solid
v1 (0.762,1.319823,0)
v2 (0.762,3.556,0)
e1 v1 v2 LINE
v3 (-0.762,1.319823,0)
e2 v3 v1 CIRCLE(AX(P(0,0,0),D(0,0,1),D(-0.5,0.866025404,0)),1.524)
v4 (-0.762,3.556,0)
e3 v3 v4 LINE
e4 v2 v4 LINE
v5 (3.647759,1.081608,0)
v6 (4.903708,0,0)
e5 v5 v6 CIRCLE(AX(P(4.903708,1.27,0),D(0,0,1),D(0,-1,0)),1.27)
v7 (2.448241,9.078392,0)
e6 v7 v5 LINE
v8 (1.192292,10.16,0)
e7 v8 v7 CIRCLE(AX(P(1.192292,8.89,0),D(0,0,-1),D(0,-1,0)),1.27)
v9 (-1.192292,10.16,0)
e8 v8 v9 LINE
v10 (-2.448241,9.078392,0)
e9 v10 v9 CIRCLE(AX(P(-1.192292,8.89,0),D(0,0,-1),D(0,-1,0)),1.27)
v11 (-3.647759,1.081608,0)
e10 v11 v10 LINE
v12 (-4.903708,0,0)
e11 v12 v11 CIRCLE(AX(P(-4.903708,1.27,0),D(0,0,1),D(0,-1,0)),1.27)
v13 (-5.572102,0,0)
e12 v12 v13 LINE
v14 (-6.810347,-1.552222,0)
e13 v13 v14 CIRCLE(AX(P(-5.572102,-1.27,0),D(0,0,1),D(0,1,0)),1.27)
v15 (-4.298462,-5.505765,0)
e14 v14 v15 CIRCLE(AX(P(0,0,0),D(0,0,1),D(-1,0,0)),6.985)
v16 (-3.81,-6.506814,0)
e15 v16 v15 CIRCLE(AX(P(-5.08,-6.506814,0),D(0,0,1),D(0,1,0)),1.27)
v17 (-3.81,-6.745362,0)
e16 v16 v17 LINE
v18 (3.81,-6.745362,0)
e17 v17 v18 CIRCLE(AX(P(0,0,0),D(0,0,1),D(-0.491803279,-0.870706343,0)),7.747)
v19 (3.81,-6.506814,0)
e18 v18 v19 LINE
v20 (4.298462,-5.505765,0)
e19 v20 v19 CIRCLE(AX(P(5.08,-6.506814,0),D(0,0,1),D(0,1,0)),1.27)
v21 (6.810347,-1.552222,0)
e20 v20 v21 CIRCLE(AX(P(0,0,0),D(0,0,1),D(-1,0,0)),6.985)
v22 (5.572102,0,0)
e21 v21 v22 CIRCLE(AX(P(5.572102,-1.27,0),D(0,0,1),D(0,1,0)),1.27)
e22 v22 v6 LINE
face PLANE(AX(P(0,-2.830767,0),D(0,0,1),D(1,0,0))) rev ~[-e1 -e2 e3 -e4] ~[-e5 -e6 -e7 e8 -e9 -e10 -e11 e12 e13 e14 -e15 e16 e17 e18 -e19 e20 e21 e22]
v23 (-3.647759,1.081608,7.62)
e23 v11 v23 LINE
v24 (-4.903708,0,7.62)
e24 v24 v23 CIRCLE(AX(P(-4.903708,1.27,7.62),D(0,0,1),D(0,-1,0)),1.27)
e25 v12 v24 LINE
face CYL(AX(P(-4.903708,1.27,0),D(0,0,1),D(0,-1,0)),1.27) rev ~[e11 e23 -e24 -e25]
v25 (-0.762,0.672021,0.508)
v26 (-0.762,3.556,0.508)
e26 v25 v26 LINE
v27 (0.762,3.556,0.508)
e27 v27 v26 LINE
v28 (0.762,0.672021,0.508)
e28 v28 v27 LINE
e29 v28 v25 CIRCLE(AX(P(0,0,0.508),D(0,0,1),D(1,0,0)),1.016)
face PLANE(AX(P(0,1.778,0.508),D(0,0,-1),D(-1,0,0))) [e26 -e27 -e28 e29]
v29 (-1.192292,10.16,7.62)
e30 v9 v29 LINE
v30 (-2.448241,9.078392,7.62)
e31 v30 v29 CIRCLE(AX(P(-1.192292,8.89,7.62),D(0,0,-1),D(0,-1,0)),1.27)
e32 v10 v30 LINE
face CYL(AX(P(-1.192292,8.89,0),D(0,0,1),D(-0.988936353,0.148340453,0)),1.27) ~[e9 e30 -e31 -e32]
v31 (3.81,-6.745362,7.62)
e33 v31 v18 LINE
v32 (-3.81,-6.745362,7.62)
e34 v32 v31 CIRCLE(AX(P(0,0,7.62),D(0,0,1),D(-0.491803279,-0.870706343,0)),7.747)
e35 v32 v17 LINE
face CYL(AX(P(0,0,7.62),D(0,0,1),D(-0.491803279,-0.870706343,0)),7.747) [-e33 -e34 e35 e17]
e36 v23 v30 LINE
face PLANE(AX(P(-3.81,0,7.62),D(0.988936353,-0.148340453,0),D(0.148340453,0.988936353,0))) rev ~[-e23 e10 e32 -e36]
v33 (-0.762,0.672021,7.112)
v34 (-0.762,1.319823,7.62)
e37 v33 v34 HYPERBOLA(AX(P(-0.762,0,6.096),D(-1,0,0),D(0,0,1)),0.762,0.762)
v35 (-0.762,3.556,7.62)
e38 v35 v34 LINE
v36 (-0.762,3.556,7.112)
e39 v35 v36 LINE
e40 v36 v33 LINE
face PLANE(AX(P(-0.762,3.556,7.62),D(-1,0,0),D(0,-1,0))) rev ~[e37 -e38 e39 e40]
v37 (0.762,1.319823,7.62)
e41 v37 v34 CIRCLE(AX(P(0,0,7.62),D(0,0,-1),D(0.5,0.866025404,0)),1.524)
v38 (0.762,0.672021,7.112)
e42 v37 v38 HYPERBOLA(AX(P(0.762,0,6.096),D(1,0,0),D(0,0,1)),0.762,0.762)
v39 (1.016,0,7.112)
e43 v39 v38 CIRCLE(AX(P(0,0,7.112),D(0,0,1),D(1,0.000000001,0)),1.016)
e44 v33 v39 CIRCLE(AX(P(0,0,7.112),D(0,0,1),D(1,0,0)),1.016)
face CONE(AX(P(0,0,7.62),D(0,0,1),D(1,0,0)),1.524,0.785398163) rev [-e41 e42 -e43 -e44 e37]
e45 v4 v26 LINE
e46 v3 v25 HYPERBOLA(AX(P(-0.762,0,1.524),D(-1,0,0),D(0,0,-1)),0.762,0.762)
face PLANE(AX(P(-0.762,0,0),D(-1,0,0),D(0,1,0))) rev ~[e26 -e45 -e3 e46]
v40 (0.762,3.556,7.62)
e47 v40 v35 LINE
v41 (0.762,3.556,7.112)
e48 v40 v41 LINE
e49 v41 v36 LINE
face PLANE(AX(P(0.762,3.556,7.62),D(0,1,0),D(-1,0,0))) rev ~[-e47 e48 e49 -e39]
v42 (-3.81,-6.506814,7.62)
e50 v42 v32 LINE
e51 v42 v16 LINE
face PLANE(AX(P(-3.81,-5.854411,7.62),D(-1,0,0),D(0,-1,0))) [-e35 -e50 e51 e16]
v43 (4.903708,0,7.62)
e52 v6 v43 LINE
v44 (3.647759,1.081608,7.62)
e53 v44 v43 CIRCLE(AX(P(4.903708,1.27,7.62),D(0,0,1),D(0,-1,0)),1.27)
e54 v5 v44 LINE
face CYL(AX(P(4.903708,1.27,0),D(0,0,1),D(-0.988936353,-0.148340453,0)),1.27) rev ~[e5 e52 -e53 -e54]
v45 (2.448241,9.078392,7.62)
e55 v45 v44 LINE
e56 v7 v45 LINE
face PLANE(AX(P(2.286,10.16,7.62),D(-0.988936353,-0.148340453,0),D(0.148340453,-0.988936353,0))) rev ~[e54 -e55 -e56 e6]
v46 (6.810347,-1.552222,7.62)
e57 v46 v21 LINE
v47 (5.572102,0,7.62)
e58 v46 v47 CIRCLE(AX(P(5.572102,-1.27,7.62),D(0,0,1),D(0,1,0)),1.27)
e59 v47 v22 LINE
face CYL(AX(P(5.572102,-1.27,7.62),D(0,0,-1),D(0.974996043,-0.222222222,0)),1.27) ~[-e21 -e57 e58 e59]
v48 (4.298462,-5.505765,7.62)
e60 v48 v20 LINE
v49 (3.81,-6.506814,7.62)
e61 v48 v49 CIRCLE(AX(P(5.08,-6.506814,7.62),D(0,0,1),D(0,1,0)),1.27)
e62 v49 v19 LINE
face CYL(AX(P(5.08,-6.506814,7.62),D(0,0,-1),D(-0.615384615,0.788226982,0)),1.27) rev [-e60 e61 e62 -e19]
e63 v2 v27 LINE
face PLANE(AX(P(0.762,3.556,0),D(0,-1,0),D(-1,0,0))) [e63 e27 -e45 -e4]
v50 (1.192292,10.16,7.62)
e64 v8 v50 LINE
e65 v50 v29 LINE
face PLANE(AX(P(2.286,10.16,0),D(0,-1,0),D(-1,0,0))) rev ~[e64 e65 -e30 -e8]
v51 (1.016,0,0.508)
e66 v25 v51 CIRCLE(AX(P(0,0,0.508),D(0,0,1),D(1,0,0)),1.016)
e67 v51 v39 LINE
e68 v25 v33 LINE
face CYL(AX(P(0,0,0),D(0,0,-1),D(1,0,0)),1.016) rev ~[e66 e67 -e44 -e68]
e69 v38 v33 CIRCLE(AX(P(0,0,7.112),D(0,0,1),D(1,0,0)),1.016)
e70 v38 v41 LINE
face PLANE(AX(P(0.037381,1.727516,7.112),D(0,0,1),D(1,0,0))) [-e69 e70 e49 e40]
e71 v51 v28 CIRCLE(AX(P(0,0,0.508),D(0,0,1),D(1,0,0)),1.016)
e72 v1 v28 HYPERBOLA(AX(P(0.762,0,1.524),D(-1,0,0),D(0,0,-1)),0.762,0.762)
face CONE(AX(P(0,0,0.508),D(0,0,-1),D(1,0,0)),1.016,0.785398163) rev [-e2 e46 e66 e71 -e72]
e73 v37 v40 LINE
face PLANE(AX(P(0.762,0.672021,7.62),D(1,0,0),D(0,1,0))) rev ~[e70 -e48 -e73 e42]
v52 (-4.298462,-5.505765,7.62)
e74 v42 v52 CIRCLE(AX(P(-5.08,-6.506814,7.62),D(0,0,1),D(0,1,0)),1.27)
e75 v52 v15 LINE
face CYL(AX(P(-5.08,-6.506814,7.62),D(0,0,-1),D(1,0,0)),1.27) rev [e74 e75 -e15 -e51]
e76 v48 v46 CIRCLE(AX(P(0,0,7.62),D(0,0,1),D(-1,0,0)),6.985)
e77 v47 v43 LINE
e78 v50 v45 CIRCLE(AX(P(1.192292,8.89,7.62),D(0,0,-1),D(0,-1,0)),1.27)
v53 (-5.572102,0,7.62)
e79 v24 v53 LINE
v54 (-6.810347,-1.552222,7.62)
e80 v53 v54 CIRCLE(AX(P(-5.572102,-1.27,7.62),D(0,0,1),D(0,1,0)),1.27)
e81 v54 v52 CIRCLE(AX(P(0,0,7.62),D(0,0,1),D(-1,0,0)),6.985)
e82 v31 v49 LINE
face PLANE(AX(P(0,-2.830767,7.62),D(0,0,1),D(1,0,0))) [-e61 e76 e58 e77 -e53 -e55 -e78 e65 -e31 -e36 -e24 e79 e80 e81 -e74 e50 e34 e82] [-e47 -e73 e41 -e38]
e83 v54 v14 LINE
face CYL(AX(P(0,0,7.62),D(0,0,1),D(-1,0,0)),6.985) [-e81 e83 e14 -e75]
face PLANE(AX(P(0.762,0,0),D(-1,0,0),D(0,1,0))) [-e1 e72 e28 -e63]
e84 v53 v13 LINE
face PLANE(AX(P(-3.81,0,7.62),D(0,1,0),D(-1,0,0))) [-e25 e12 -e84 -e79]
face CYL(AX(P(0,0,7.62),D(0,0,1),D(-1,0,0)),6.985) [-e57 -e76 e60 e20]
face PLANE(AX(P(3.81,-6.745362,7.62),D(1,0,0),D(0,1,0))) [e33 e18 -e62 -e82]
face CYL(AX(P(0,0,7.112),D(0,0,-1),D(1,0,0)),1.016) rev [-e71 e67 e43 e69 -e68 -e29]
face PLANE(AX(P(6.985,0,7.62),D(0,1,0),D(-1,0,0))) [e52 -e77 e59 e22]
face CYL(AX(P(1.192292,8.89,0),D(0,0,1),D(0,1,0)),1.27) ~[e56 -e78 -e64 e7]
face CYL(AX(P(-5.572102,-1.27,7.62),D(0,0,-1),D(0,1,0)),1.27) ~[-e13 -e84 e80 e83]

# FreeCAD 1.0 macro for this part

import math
import FreeCAD as App
import Part
import Sketcher

V = App.Vector
Q = App.Units.Quantity


def edges_at(feature, points):
    """Names of the edges that pass closest to the given points."""
    edges = feature.Shape.Edges
    near = lambda p: min(range(len(edges)), key=lambda i: edges[i].distToShape(Part.Vertex(*p))[0])
    return sorted({f"Edge{near(p) + 1}" for p in points})

doc = App.newDocument("Part")
params = doc.addObject("Spreadsheet::Sheet", "Params")
for row, (alias, value) in enumerate([
    ("sketch1_radius", "0.15 in"),
    ("sketch1_radius2", "0.06 in"),
    ("sketch1_radius3", "0.04 in"),
    ("sketch1_width", "0.07 in"),
    ("sketch1_height", "0.34 in"),
    ("pad1_length", "0.3 in"),
    ("sketch2_radius", "0.04 in"),
    ("sketch2_width", "0.07 in"),
    ("sketch2_width2", "0.06 in"),
    ("sketch2_height", "0.14 in"),
    ("pocket1_length", "0.02 in"),
    ("sketch3_width", "0.06 in"),
    ("sketch3_height", "0.14 in"),
    ("pocket2_length", "0.02 in"),
    ("sketch4_height", "0.3 in"),
    ("sketch4_width", "0.06 in"),
    ("sketch4_height2", "0.26 in"),
    ("groove_angle", "360 deg"),
    ("sketch5_radius", "0.15 in"),
    ("sketch5_radius2", "0.275 in"),
    ("pad2_length", "0.3 in"),
    ("sketch6_radius", "0.275 in"),
    ("sketch6_radius2", "0.305 in"),
    ("pad3_length", "0.3 in"),
    ("fillet_radius", "0.05 in"),
    ("sketch7_radius", "0.06 in"),
    ("sketch7_height", "0.34 in"),
    ("pocket3_length", "0.3 in"),
    ("fillet2_radius", "0.05 in"),
], start=1):
    params.set(f"A{row}", alias)
    params.set(f"B{row}", "=" + value)
    params.setAlias(f"B{row}", alias)

body = doc.addObject("PartDesign::Body", "Body")

# Sketch on XY plane
sketch1 = body.newObject("Sketcher::SketchObject", "Sketch")
sketch1.AttachmentSupport = (doc.getObject("XY_Plane"), [""])
sketch1.MapMode = "FlatFace"
sketch1.addGeometry(Part.ArcOfCircle(Part.Circle(V(0, 0, 0), V(0, 0, 1), 3.8), math.radians(180), math.radians(360)), False)
sketch1.addGeometry(Part.LineSegment(V(3.8, 0, 0), V(3.8, 8.6, 0)), False)
sketch1.addGeometry(Part.ArcOfCircle(Part.Circle(V(2.3, 8.6, 0), V(0, 0, 1), 1.5), math.radians(0), math.radians(90)), False)
sketch1.addGeometry(Part.LineSegment(V(2.3, 10.2, 0), V(-2.3, 10.2, 0)), False)
sketch1.addGeometry(Part.ArcOfCircle(Part.Circle(V(-2.3, 8.6, 0), V(0, 0, 1), 1.5), math.radians(90), math.radians(180)), False)
sketch1.addGeometry(Part.LineSegment(V(-3.8, 8.6, 0), V(-3.8, 0, 0)), False)
sketch1.addGeometry(Part.LineSegment(V(-0.8, 0.7, 0), V(-0.8, 0, 0)), False)
sketch1.addGeometry(Part.LineSegment(V(-0.8, 0, 0), V(1, 0, 0)), False)
sketch1.addGeometry(Part.ArcOfCircle(Part.Circle(V(0, 0, 0), V(0, 0, 1), 1), math.radians(139), math.radians(360)), False)
sketch1.addConstraint(Sketcher.Constraint("Tangent", 0, 2, 1, 1))
sketch1.addConstraint(Sketcher.Constraint("Tangent", 1, 2, 2, 1))
sketch1.addConstraint(Sketcher.Constraint("Tangent", 2, 2, 3, 1))
sketch1.addConstraint(Sketcher.Constraint("Tangent", 3, 2, 4, 1))
sketch1.addConstraint(Sketcher.Constraint("Tangent", 4, 2, 5, 1))
sketch1.addConstraint(Sketcher.Constraint("Tangent", 5, 2, 0, 1))
sketch1.addConstraint(Sketcher.Constraint("Coincident", 6, 2, 7, 1))
sketch1.addConstraint(Sketcher.Constraint("Coincident", 7, 2, 8, 2))
sketch1.addConstraint(Sketcher.Constraint("Coincident", 8, 1, 6, 1))
sketch1.addConstraint(Sketcher.Constraint("Vertical", 1))
sketch1.addConstraint(Sketcher.Constraint("Horizontal", 3))
sketch1.addConstraint(Sketcher.Constraint("Vertical", 5))
sketch1.addConstraint(Sketcher.Constraint("Vertical", 6))
sketch1.addConstraint(Sketcher.Constraint("Horizontal", 7))
sketch1.addConstraint(Sketcher.Constraint("Coincident", 0, 3, -1, 1))
sketch1.addConstraint(Sketcher.Constraint("Coincident", 8, 3, -1, 1))
sketch1.addConstraint(Sketcher.Constraint("Equal", 2, 4))
sketch1.addConstraint(Sketcher.Constraint("PointOnObject", 6, 2, -1))
sketch1.addConstraint(Sketcher.Constraint("Radius", 0, Q("0.15 in")))
sketch1.addConstraint(Sketcher.Constraint("Radius", 2, Q("0.06 in")))
sketch1.addConstraint(Sketcher.Constraint("Radius", 8, Q("0.04 in")))
sketch1.addConstraint(Sketcher.Constraint("DistanceX", 7, 1, 7, 2, Q("0.07 in")))
sketch1.addConstraint(Sketcher.Constraint("DistanceY", 1, 1, 1, 2, Q("0.34 in")))
sketch1.setExpression("Constraints[18]", "Params.sketch1_radius")
sketch1.setExpression("Constraints[19]", "Params.sketch1_radius2")
sketch1.setExpression("Constraints[20]", "Params.sketch1_radius3")
sketch1.setExpression("Constraints[21]", "Params.sketch1_width")
sketch1.setExpression("Constraints[22]", "Params.sketch1_height")
pad1 = body.newObject("PartDesign::Pad", "Pad")
pad1.Profile = sketch1
pad1.setExpression("Length", "Params.pad1_length")

# Sketch on XY plane
sketch2 = body.newObject("Sketcher::SketchObject", "Sketch001")
sketch2.AttachmentSupport = (doc.getObject("XY_Plane"), [""])
sketch2.MapMode = "FlatFace"
sketch2.AttachmentOffset = App.Placement(V(0, 0, 0.3 * 25.4), App.Rotation())
sketch2.addGeometry(Part.LineSegment(V(-0.8, 0, 0), V(1, 0, 0)), False)
sketch2.addGeometry(Part.ArcOfCircle(Part.Circle(V(0, 0, 0), V(0, 0, 1), 1), math.radians(0), math.radians(41)), False)
sketch2.addGeometry(Part.LineSegment(V(0.8, 0.7, 0), V(0.8, 3.6, 0)), False)
sketch2.addGeometry(Part.LineSegment(V(0.8, 3.6, 0), V(-0.8, 3.6, 0)), False)
sketch2.addGeometry(Part.LineSegment(V(-0.8, 3.6, 0), V(-0.8, 0, 0)), False)
sketch2.addConstraint(Sketcher.Constraint("Coincident", 0, 2, 1, 1))
sketch2.addConstraint(Sketcher.Constraint("Coincident", 1, 2, 2, 1))
sketch2.addConstraint(Sketcher.Constraint("Coincident", 2, 2, 3, 1))
sketch2.addConstraint(Sketcher.Constraint("Coincident", 3, 2, 4, 1))
sketch2.addConstraint(Sketcher.Constraint("Coincident", 4, 2, 0, 1))
sketch2.addConstraint(Sketcher.Constraint("Horizontal", 0))
sketch2.addConstraint(Sketcher.Constraint("Vertical", 2))
sketch2.addConstraint(Sketcher.Constraint("Horizontal", 3))
sketch2.addConstraint(Sketcher.Constraint("Vertical", 4))
sketch2.addConstraint(Sketcher.Constraint("Coincident", 1, 3, -1, 1))
sketch2.addConstraint(Sketcher.Constraint("PointOnObject", 0, 2, -1))
sketch2.addConstraint(Sketcher.Constraint("Radius", 1, Q("0.04 in")))
sketch2.addConstraint(Sketcher.Constraint("DistanceX", 0, 1, 0, 2, Q("0.07 in")))
sketch2.addConstraint(Sketcher.Constraint("DistanceX", 3, 2, 3, 1, Q("0.06 in")))
sketch2.addConstraint(Sketcher.Constraint("DistanceY", 4, 2, 4, 1, Q("0.14 in")))
sketch2.setExpression("Constraints[11]", "Params.sketch2_radius")
sketch2.setExpression("Constraints[12]", "Params.sketch2_width")
sketch2.setExpression("Constraints[13]", "Params.sketch2_width2")
sketch2.setExpression("Constraints[14]", "Params.sketch2_height")
pocket1 = body.newObject("PartDesign::Pocket", "Pocket")
pocket1.Profile = sketch2
pocket1.setExpression("Length", "Params.pocket1_length")

# Sketch on XY plane
sketch3 = body.newObject("Sketcher::SketchObject", "Sketch002")
sketch3.AttachmentSupport = (doc.getObject("XY_Plane"), [""])
sketch3.MapMode = "FlatFace"
sketch3.addGeometry(Part.LineSegment(V(0.8, 3.6, 0), V(0.8, 0, 0)), False)
sketch3.addGeometry(Part.LineSegment(V(0.8, 0, 0), V(-0.8, 0, 0)), False)
sketch3.addGeometry(Part.LineSegment(V(-0.8, 0, 0), V(-0.8, 3.6, 0)), False)
sketch3.addGeometry(Part.LineSegment(V(-0.8, 3.6, 0), V(0.8, 3.6, 0)), False)
sketch3.addConstraint(Sketcher.Constraint("Coincident", 0, 2, 1, 1))
sketch3.addConstraint(Sketcher.Constraint("Coincident", 1, 2, 2, 1))
sketch3.addConstraint(Sketcher.Constraint("Coincident", 2, 2, 3, 1))
sketch3.addConstraint(Sketcher.Constraint("Coincident", 3, 2, 0, 1))
sketch3.addConstraint(Sketcher.Constraint("Vertical", 0))
sketch3.addConstraint(Sketcher.Constraint("Horizontal", 1))
sketch3.addConstraint(Sketcher.Constraint("Vertical", 2))
sketch3.addConstraint(Sketcher.Constraint("Horizontal", 3))
sketch3.addConstraint(Sketcher.Constraint("Symmetric", 0, 2, 1, 2, -1, 1))
sketch3.addConstraint(Sketcher.Constraint("DistanceX", 1, 2, 1, 1, Q("0.06 in")))
sketch3.addConstraint(Sketcher.Constraint("DistanceY", 0, 2, 0, 1, Q("0.14 in")))
sketch3.setExpression("Constraints[9]", "Params.sketch3_width")
sketch3.setExpression("Constraints[10]", "Params.sketch3_height")
pocket2 = body.newObject("PartDesign::Pocket", "Pocket001")
pocket2.Profile = sketch3
pocket2.setExpression("Length", "Params.pocket2_length")
pocket2.Reversed = True

# Sketch on XZ plane
sketch4 = body.newObject("Sketcher::SketchObject", "Sketch003")
sketch4.AttachmentSupport = (doc.getObject("XZ_Plane"), [""])
sketch4.MapMode = "FlatFace"
sketch4.addGeometry(Part.LineSegment(V(0, 0, 0), V(0, 7.6, 0)), False)
sketch4.addGeometry(Part.LineSegment(V(0, 7.6, 0), V(1.5, 7.6, 0)), False)
sketch4.addGeometry(Part.LineSegment(V(1.5, 7.6, 0), V(1, 7.1, 0)), False)
sketch4.addGeometry(Part.LineSegment(V(1, 7.1, 0), V(1, 0.5, 0)), False)
sketch4.addGeometry(Part.LineSegment(V(1, 0.5, 0), V(1.5, 0, 0)), False)
sketch4.addGeometry(Part.LineSegment(V(1.5, 0, 0), V(0, 0, 0)), False)
sketch4.addConstraint(Sketcher.Constraint("Coincident", 0, 2, 1, 1))
sketch4.addConstraint(Sketcher.Constraint("Coincident", 1, 2, 2, 1))
sketch4.addConstraint(Sketcher.Constraint("Coincident", 2, 2, 3, 1))
sketch4.addConstraint(Sketcher.Constraint("Coincident", 3, 2, 4, 1))
sketch4.addConstraint(Sketcher.Constraint("Coincident", 4, 2, 5, 1))
sketch4.addConstraint(Sketcher.Constraint("Coincident", 5, 2, 0, 1))
sketch4.addConstraint(Sketcher.Constraint("Vertical", 0))
sketch4.addConstraint(Sketcher.Constraint("Horizontal", 1))
sketch4.addConstraint(Sketcher.Constraint("Vertical", 3))
sketch4.addConstraint(Sketcher.Constraint("Horizontal", 5))
sketch4.addConstraint(Sketcher.Constraint("Coincident", 5, 2, -1, 1))
sketch4.addConstraint(Sketcher.Constraint("Perpendicular", 2, 4))
sketch4.addConstraint(Sketcher.Constraint("Vertical", 1, 2, 4, 2))
sketch4.addConstraint(Sketcher.Constraint("Equal", 2, 4))
sketch4.addConstraint(Sketcher.Constraint("DistanceY", 0, 1, 0, 2, Q("0.3 in")))
sketch4.addConstraint(Sketcher.Constraint("DistanceX", 1, 1, 1, 2, Q("0.06 in")))
sketch4.addConstraint(Sketcher.Constraint("DistanceY", 3, 2, 3, 1, Q("0.26 in")))
sketch4.setExpression("Constraints[14]", "Params.sketch4_height")
sketch4.setExpression("Constraints[15]", "Params.sketch4_width")
sketch4.setExpression("Constraints[16]", "Params.sketch4_height2")
groove = body.newObject("PartDesign::Groove", "Groove")
groove.Profile = sketch4
groove.ReferenceAxis = (sketch4, ["V_Axis"])
groove.setExpression("Angle", "Params.groove_angle")

# Sketch on XY plane
sketch5 = body.newObject("Sketcher::SketchObject", "Sketch004")
sketch5.AttachmentSupport = (doc.getObject("XY_Plane"), [""])
sketch5.MapMode = "FlatFace"
sketch5.AttachmentOffset = App.Placement(V(0, 0, 0.3 * 25.4), App.Rotation())
sketch5.addGeometry(Part.LineSegment(V(-3.8, 0, 0), V(-7, 0, 0)), False)
sketch5.addGeometry(Part.ArcOfCircle(Part.Circle(V(0, 0, 0), V(0, 0, 1), 7), math.radians(180), math.radians(360)), False)
sketch5.addGeometry(Part.LineSegment(V(7, 0, 0), V(3.8, 0, 0)), False)
sketch5.addGeometry(Part.ArcOfCircle(Part.Circle(V(0, 0, 0), V(0, 0, 1), 3.8), math.radians(180), math.radians(360)), False)
sketch5.addConstraint(Sketcher.Constraint("Coincident", 0, 2, 1, 1))
sketch5.addConstraint(Sketcher.Constraint("Coincident", 1, 2, 2, 1))
sketch5.addConstraint(Sketcher.Constraint("Coincident", 2, 2, 3, 2))
sketch5.addConstraint(Sketcher.Constraint("Coincident", 3, 1, 0, 1))
sketch5.addConstraint(Sketcher.Constraint("Horizontal", 0))
sketch5.addConstraint(Sketcher.Constraint("Horizontal", 2))
sketch5.addConstraint(Sketcher.Constraint("Coincident", 1, 3, -1, 1))
sketch5.addConstraint(Sketcher.Constraint("Coincident", 3, 3, -1, 1))
sketch5.addConstraint(Sketcher.Constraint("PointOnObject", 0, 2, -1))
sketch5.addConstraint(Sketcher.Constraint("PointOnObject", 1, 2, -1))
sketch5.addConstraint(Sketcher.Constraint("Radius", 3, Q("0.15 in")))
sketch5.addConstraint(Sketcher.Constraint("Radius", 1, Q("0.275 in")))
sketch5.setExpression("Constraints[10]", "Params.sketch5_radius")
sketch5.setExpression("Constraints[11]", "Params.sketch5_radius2")
pad2 = body.newObject("PartDesign::Pad", "Pad001")
pad2.Profile = sketch5
pad2.setExpression("Length", "Params.pad2_length")
pad2.Reversed = True

# Sketch on XY plane
sketch6 = body.newObject("Sketcher::SketchObject", "Sketch005")
sketch6.AttachmentSupport = (doc.getObject("XY_Plane"), [""])
sketch6.MapMode = "FlatFace"
sketch6.AttachmentOffset = App.Placement(V(0, 0, 0.3 * 25.4), App.Rotation())
sketch6.addGeometry(Part.ArcOfCircle(Part.Circle(V(0, 0, 0), V(0, 0, 1), 7), math.radians(-123), math.radians(-57)), False)
sketch6.addGeometry(Part.LineSegment(V(-3.8, -5.9, 0), V(-3.8, -6.7, 0)), False)
sketch6.addGeometry(Part.ArcOfCircle(Part.Circle(V(0, 0, 0), V(0, 0, 1), 7.7), math.radians(-119), math.radians(-61)), False)
sketch6.addGeometry(Part.LineSegment(V(3.8, -6.7, 0), V(3.8, -5.9, 0)), False)
sketch6.addConstraint(Sketcher.Constraint("Coincident", 0, 1, 1, 1))
sketch6.addConstraint(Sketcher.Constraint("Coincident", 1, 2, 2, 1))
sketch6.addConstraint(Sketcher.Constraint("Coincident", 2, 2, 3, 1))
sketch6.addConstraint(Sketcher.Constraint("Coincident", 3, 2, 0, 2))
sketch6.addConstraint(Sketcher.Constraint("Vertical", 1))
sketch6.addConstraint(Sketcher.Constraint("Vertical", 3))
sketch6.addConstraint(Sketcher.Constraint("Coincident", 0, 3, -1, 1))
sketch6.addConstraint(Sketcher.Constraint("Coincident", 2, 3, -1, 1))
sketch6.addConstraint(Sketcher.Constraint("Horizontal", 1, 2, 2, 2))
sketch6.addConstraint(Sketcher.Constraint("Radius", 0, Q("0.275 in")))
sketch6.addConstraint(Sketcher.Constraint("Radius", 2, Q("0.305 in")))
sketch6.addConstraint(Sketcher.Constraint("DistanceX", 1, 2, 2, 2, Q("0.3 in")))
sketch6.setExpression("Constraints[9]", "Params.sketch6_radius")
sketch6.setExpression("Constraints[10]", "Params.sketch6_radius2")
pad3 = body.newObject("PartDesign::Pad", "Pad002")
pad3.Profile = sketch6
pad3.setExpression("Length", "Params.pad3_length")
pad3.Reversed = True
doc.recompute()

fillet = body.newObject("PartDesign::Fillet", "Fillet")
fillet.Base = (pad3, edges_at(pad3, [(-6.985, 0, 3.81), (6.985, 0, 3.81)]))
fillet.setExpression("Radius", "Params.fillet_radius")

# Sketch on XY plane
sketch7 = body.newObject("Sketcher::SketchObject", "Sketch006")
sketch7.AttachmentSupport = (doc.getObject("XY_Plane"), [""])
sketch7.MapMode = "FlatFace"
sketch7.AttachmentOffset = App.Placement(V(0, 0, 0.3 * 25.4), App.Rotation())
sketch7.addGeometry(Part.LineSegment(V(-3.8, 0, 0), V(-2.3, 10.2, 0)), False)
sketch7.addGeometry(Part.ArcOfCircle(Part.Circle(V(-2.3, 8.6, 0), V(0, 0, 1), 1.5), math.radians(90), math.radians(180)), False)
sketch7.addGeometry(Part.LineSegment(V(-3.8, 8.6, 0), V(-3.8, 0, 0)), False)
sketch7.addGeometry(Part.LineSegment(V(2.3, 10.2, 0), V(3.8, 0, 0)), False)
sketch7.addGeometry(Part.LineSegment(V(3.8, 0, 0), V(3.8, 8.6, 0)), False)
sketch7.addGeometry(Part.ArcOfCircle(Part.Circle(V(2.3, 8.6, 0), V(0, 0, 1), 1.5), math.radians(0), math.radians(90)), False)
sketch7.addConstraint(Sketcher.Constraint("Coincident", 0, 2, 1, 1))
sketch7.addConstraint(Sketcher.Constraint("Tangent", 1, 2, 2, 1))
sketch7.addConstraint(Sketcher.Constraint("Coincident", 2, 2, 0, 1))
sketch7.addConstraint(Sketcher.Constraint("Coincident", 3, 2, 4, 1))
sketch7.addConstraint(Sketcher.Constraint("Tangent", 4, 2, 5, 1))
sketch7.addConstraint(Sketcher.Constraint("Coincident", 5, 2, 3, 1))
sketch7.addConstraint(Sketcher.Constraint("Vertical", 2))
sketch7.addConstraint(Sketcher.Constraint("Vertical", 4))
sketch7.addConstraint(Sketcher.Constraint("Equal", 1, 5))
sketch7.addConstraint(Sketcher.Constraint("Symmetric", 2, 2, 3, 2, -1, 1))
sketch7.addConstraint(Sketcher.Constraint("Symmetric", 0, 2, 5, 2, -2))
sketch7.addConstraint(Sketcher.Constraint("PointOnObject", 2, 2, -1))
sketch7.addConstraint(Sketcher.Constraint("Vertical", 1, 3, 0, 2))
sketch7.addConstraint(Sketcher.Constraint("Radius", 1, Q("0.06 in")))
sketch7.addConstraint(Sketcher.Constraint("DistanceY", 2, 2, 2, 1, Q("0.34 in")))
sketch7.addConstraint(Sketcher.Constraint("DistanceX", 2, 2, 3, 2, Q("0.3 in")))
sketch7.setExpression("Constraints[13]", "Params.sketch7_radius")
sketch7.setExpression("Constraints[14]", "Params.sketch7_height")
pocket3 = body.newObject("PartDesign::Pocket", "Pocket002")
pocket3.Profile = sketch7
pocket3.setExpression("Length", "Params.pocket3_length")
doc.recompute()

fillet2 = body.newObject("PartDesign::Fillet", "Fillet001")
fillet2.Base = (pocket3, edges_at(pocket3, [
    (-3.81, -5.854, 3.81),
    (3.81, -5.854, 3.81),
    (-3.81, 0, 3.81),
    (-2.286, 10.16, 3.81),
    (2.286, 10.16, 3.81),
    (3.81, 0, 3.81),
]))
fillet2.setExpression("Radius", "Params.fillet2_radius")

doc.recompute()
